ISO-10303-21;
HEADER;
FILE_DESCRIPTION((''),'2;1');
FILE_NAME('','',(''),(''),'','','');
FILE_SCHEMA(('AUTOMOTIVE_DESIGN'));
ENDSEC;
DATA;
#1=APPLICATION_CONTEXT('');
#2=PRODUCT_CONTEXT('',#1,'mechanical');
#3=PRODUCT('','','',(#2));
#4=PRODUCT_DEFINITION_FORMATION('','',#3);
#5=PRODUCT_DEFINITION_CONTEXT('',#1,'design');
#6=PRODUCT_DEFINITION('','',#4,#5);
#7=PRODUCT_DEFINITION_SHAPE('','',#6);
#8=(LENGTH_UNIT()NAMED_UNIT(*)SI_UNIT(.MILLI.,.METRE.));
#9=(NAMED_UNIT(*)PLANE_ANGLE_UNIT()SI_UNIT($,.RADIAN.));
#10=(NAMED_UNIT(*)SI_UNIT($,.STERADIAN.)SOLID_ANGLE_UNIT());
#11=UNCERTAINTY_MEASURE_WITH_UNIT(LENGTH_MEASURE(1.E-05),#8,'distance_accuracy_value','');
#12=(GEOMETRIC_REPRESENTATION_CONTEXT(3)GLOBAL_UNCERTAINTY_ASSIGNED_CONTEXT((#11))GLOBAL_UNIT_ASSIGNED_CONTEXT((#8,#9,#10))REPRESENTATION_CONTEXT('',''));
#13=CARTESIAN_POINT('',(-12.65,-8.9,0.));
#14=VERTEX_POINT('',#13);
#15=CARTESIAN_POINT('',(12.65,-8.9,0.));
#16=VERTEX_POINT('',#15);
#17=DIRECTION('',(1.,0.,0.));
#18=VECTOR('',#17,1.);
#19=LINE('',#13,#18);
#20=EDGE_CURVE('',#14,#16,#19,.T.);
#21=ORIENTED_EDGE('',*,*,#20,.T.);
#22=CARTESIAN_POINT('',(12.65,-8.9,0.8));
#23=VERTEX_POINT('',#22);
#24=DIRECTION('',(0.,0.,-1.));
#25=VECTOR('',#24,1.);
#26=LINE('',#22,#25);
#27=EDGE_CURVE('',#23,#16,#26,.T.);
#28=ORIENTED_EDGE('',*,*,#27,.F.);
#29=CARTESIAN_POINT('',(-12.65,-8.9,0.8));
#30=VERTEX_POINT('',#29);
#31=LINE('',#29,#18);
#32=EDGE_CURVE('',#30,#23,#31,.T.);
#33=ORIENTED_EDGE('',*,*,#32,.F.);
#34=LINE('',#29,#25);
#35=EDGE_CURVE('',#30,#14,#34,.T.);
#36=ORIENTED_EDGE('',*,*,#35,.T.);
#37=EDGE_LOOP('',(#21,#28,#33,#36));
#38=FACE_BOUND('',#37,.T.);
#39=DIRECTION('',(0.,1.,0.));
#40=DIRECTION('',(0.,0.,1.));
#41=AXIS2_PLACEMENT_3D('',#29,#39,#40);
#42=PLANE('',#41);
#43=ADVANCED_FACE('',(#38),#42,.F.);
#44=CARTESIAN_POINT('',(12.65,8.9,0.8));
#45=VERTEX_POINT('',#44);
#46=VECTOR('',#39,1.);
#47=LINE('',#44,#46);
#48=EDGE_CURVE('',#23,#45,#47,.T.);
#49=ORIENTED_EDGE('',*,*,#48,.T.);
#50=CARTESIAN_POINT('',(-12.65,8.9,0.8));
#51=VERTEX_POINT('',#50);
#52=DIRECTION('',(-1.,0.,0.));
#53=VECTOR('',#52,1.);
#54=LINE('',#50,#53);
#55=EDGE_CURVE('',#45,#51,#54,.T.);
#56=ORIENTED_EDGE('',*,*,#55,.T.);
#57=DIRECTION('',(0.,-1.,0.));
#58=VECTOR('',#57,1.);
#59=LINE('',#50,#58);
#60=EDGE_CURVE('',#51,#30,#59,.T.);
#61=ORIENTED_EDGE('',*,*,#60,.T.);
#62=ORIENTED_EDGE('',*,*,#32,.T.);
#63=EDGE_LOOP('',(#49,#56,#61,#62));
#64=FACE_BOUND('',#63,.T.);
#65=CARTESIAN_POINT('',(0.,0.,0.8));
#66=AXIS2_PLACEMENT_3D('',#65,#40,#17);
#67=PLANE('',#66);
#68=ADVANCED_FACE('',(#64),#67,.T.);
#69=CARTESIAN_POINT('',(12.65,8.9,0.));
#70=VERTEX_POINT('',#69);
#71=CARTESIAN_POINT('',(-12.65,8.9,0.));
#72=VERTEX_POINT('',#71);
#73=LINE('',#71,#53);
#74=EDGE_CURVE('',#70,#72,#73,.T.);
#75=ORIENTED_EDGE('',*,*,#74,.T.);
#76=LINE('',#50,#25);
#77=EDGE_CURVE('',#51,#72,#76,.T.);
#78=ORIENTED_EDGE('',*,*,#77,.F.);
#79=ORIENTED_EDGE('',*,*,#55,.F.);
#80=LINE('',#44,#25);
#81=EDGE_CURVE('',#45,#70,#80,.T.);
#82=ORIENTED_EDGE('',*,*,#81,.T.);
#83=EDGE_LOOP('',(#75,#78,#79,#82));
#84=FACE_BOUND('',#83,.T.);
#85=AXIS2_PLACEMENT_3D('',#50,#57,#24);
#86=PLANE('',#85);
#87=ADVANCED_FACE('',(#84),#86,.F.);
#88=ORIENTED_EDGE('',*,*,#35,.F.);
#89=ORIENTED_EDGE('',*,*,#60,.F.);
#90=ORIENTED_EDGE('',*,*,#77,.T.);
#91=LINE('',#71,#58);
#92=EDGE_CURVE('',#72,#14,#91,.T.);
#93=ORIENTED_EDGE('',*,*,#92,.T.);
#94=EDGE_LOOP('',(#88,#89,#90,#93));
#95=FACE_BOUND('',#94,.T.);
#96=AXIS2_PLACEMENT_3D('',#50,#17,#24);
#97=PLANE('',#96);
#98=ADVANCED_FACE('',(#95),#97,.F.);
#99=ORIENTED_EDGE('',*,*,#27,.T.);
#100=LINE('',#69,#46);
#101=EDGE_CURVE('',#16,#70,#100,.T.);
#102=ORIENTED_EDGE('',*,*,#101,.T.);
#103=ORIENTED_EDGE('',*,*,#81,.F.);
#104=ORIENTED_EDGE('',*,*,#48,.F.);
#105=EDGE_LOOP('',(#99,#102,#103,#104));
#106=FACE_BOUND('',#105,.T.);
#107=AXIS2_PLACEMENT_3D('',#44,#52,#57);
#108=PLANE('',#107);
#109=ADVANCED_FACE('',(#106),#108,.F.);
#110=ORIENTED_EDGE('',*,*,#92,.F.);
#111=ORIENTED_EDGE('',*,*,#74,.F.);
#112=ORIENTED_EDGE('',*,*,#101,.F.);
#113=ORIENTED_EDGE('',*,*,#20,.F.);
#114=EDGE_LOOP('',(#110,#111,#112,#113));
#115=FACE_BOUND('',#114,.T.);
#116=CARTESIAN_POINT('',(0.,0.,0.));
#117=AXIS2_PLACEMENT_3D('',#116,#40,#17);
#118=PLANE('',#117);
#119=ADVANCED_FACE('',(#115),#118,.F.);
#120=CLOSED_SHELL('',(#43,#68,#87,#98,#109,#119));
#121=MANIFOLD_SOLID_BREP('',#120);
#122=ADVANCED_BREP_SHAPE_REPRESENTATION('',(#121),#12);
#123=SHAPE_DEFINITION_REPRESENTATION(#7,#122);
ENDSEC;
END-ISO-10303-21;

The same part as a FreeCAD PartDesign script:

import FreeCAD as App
import Part
import Sketcher
from FreeCAD import Vector

doc = App.newDocument("Part")
params = doc.addObject("Spreadsheet::Sheet", "Params")
for row, (alias, value) in enumerate([
    ("sketch1_width", "25.3 mm"),
    ("sketch1_height", "17.8 mm"),
    ("pad1_length", "0.8 mm"),
], start=1):
    params.set(f"A{row}", alias)
    params.set(f"B{row}", "=" + value)
    params.setAlias(f"B{row}", alias)

body = doc.addObject("PartDesign::Body", "Body")

sketch1 = body.newObject("Sketcher::SketchObject", "Sketch")
sketch1.AttachmentSupport = (doc.getObject("XY_Plane"), [""])
sketch1.MapMode = "FlatFace"
sketch1.addGeometry([
    Part.LineSegment(Vector(-13, 9, 0), Vector(-13, -9, 0)),
    Part.LineSegment(Vector(-13, -9, 0), Vector(13, -9, 0)),
    Part.LineSegment(Vector(13, -9, 0), Vector(13, 9, 0)),
    Part.LineSegment(Vector(13, 9, 0), Vector(-13, 9, 0)),
], False)
sketch1.addConstraint([
    Sketcher.Constraint("Coincident", 0, 2, 1, 1),
    Sketcher.Constraint("Coincident", 1, 2, 2, 1),
    Sketcher.Constraint("Coincident", 2, 2, 3, 1),
    Sketcher.Constraint("Coincident", 3, 2, 0, 1),
    Sketcher.Constraint("Vertical", 0),
    Sketcher.Constraint("Horizontal", 1),
    Sketcher.Constraint("Vertical", 2),
    Sketcher.Constraint("Horizontal", 3),
    Sketcher.Constraint("Symmetric", 0, 2, 2, 2, -1, 1),
    Sketcher.Constraint("DistanceX", 1, 1, 1, 2, 25.3),
    Sketcher.Constraint("DistanceY", 0, 2, 0, 1, 17.8),
])
sketch1.setExpression("Constraints[9]", "Params.sketch1_width")
sketch1.setExpression("Constraints[10]", "Params.sketch1_height")
pad1 = body.newObject("PartDesign::Pad", "Pad")
pad1.Profile = sketch1
pad1.setExpression("Length", "Params.pad1_length")

doc.recompute()
